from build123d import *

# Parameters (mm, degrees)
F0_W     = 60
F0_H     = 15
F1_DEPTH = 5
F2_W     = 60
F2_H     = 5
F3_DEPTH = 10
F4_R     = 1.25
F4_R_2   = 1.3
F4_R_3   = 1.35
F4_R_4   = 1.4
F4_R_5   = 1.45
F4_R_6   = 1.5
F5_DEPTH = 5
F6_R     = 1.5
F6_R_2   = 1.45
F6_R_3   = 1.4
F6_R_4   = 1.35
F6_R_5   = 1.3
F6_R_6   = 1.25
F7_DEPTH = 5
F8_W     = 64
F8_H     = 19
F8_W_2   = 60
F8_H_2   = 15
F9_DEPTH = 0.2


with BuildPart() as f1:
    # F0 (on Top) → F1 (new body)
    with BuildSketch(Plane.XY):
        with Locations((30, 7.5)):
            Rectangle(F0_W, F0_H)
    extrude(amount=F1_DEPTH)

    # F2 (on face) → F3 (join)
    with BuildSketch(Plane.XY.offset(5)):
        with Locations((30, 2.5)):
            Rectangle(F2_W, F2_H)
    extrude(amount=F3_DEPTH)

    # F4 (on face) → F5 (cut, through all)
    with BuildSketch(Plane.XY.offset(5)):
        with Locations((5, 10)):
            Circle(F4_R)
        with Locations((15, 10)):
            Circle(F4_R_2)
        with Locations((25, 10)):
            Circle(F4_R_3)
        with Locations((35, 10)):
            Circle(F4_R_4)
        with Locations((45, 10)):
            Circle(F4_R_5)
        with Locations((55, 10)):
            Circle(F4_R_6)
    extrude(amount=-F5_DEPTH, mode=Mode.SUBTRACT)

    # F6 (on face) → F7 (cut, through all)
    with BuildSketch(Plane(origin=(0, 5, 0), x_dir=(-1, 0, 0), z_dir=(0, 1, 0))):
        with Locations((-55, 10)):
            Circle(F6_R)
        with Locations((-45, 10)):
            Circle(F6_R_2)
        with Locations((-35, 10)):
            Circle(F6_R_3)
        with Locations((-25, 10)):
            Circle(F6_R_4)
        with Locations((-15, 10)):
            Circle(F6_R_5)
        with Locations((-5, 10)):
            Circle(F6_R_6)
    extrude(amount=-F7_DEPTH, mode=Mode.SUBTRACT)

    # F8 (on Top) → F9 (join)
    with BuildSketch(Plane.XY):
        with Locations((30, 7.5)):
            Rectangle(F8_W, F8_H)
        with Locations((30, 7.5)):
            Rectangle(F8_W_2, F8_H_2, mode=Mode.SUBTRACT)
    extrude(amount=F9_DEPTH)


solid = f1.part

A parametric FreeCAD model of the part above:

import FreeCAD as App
import Part
import Sketcher

V = App.Vector


def add_polygon(sketch, points):
    """Adds a closed chain of lines whose ends are joined by coincident constraints."""
    first, n = sketch.GeometryCount, len(points)
    for a, b in zip(points, points[1:] + points[:1]):
        sketch.addGeometry(Part.LineSegment(App.Vector(*a, 0), App.Vector(*b, 0)), False)
    for i in range(n):
        sketch.addConstraint(Sketcher.Constraint("Coincident", first + i, 2, first + (i + 1) % n, 1))

doc = App.newDocument("Part")
body = doc.addObject("PartDesign::Body", "Body")

sketch1 = doc.addObject("Sketcher::SketchObject", "Sketch")
body.addObject(sketch1)
sketch1.AttachmentSupport = (doc.XY_Plane, [""])
sketch1.MapMode = "FlatFace"
add_polygon(sketch1, [(0, 15), (0, 0), (60, 0), (60, 15)])
sketch1.addConstraint([
    Sketcher.Constraint("Vertical", 0),
    Sketcher.Constraint("Horizontal", 1),
    Sketcher.Constraint("Vertical", 2),
    Sketcher.Constraint("Horizontal", 3),
    Sketcher.Constraint("Coincident", 0, 2, -1, 1),
    Sketcher.Constraint("DistanceX", 1, 1, 1, 2, 60.0),
    Sketcher.Constraint("DistanceY", 0, 2, 0, 1, 15.0),
])
pad1 = doc.addObject("PartDesign::Pad", "Pad")
body.addObject(pad1)
pad1.Profile = sketch1
pad1.Length = 5

sketch2 = doc.addObject("Sketcher::SketchObject", "Sketch001")
body.addObject(sketch2)
sketch2.AttachmentSupport = (doc.XY_Plane, [""])
sketch2.MapMode = "FlatFace"
sketch2.AttachmentOffset = App.Placement(V(0, 0, 5), App.Rotation())
add_polygon(sketch2, [(0, 5), (0, 0), (60, 0), (60, 5)])
sketch2.addConstraint([
    Sketcher.Constraint("Vertical", 0),
    Sketcher.Constraint("Horizontal", 1),
    Sketcher.Constraint("Vertical", 2),
    Sketcher.Constraint("Horizontal", 3),
    Sketcher.Constraint("Coincident", 0, 2, -1, 1),
    Sketcher.Constraint("DistanceX", 1, 1, 1, 2, 60.0),
    Sketcher.Constraint("DistanceY", 0, 2, 0, 1, 5.0),
])
pad2 = doc.addObject("PartDesign::Pad", "Pad001")
body.addObject(pad2)
pad2.Profile = sketch2
pad2.Length = 10

sketch3 = doc.addObject("Sketcher::SketchObject", "Sketch002")
body.addObject(sketch3)
sketch3.AttachmentSupport = (doc.XY_Plane, [""])
sketch3.MapMode = "FlatFace"
sketch3.AttachmentOffset = App.Placement(V(0, 0, 5), App.Rotation())
sketch3.addGeometry([
    Part.Circle(V(5, 10, 0), V(0, 0, 1), 1.25),
    Part.Circle(V(15, 10, 0), V(0, 0, 1), 1.3),
    Part.Circle(V(25, 10, 0), V(0, 0, 1), 1.35),
    Part.Circle(V(35, 10, 0), V(0, 0, 1), 1.4),
    Part.Circle(V(45, 10, 0), V(0, 0, 1), 1.45),
    Part.Circle(V(55, 10, 0), V(0, 0, 1), 1.5),
], False)
sketch3.addConstraint([
    Sketcher.Constraint("Horizontal", 0, 3, 1, 3),
    Sketcher.Constraint("Horizontal", 1, 3, 2, 3),
    Sketcher.Constraint("Horizontal", 2, 3, 3, 3),
    Sketcher.Constraint("Horizontal", 3, 3, 4, 3),
    Sketcher.Constraint("Horizontal", 4, 3, 5, 3),
    Sketcher.Constraint("Diameter", 5, 3.0),
    Sketcher.Constraint("Diameter", 0, 2.5),
    Sketcher.Constraint("Diameter", 1, 2.6),
    Sketcher.Constraint("Diameter", 2, 2.7),
    Sketcher.Constraint("Diameter", 3, 2.8),
    Sketcher.Constraint("Diameter", 4, 2.9),
    Sketcher.Constraint("DistanceX", -1, 1, 0, 3, 5.0),
    Sketcher.Constraint("DistanceY", -1, 1, 0, 3, 10.0),
    Sketcher.Constraint("DistanceX", -1, 1, 1, 3, 15.0),
    Sketcher.Constraint("DistanceX", -1, 1, 2, 3, 25.0),
    Sketcher.Constraint("DistanceX", -1, 1, 3, 3, 35.0),
    Sketcher.Constraint("DistanceX", -1, 1, 4, 3, 45.0),
    Sketcher.Constraint("DistanceX", -1, 1, 5, 3, 55.0),
])
pocket1 = doc.addObject("PartDesign::Pocket", "Pocket")
body.addObject(pocket1)
pocket1.Profile = sketch3
pocket1.Type = "ThroughAll"

sketch4 = doc.addObject("Sketcher::SketchObject", "Sketch003")
body.addObject(sketch4)
sketch4.AttachmentSupport = (doc.XZ_Plane, [""])
sketch4.MapMode = "FlatFace"
sketch4.AttachmentOffset = App.Placement(V(0, 0, -5), App.Rotation())
sketch4.addGeometry([
    Part.Circle(V(55, 10, 0), V(0, 0, 1), 1.5),
    Part.Circle(V(45, 10, 0), V(0, 0, 1), 1.45),
    Part.Circle(V(35, 10, 0), V(0, 0, 1), 1.4),
    Part.Circle(V(25, 10, 0), V(0, 0, 1), 1.35),
    Part.Circle(V(15, 10, 0), V(0, 0, 1), 1.3),
    Part.Circle(V(5, 10, 0), V(0, 0, 1), 1.25),
], False)
sketch4.addConstraint([
    Sketcher.Constraint("Horizontal", 0, 3, 1, 3),
    Sketcher.Constraint("Horizontal", 1, 3, 2, 3),
    Sketcher.Constraint("Horizontal", 2, 3, 3, 3),
    Sketcher.Constraint("Horizontal", 3, 3, 4, 3),
    Sketcher.Constraint("Horizontal", 4, 3, 5, 3),
    Sketcher.Constraint("Diameter", 0, 3.0),
    Sketcher.Constraint("Diameter", 1, 2.9),
    Sketcher.Constraint("Diameter", 2, 2.8),
    Sketcher.Constraint("Diameter", 3, 2.7),
    Sketcher.Constraint("Diameter", 4, 2.6),
    Sketcher.Constraint("Diameter", 5, 2.5),
    Sketcher.Constraint("DistanceX", -1, 1, 0, 3, 55.0),
    Sketcher.Constraint("DistanceY", -1, 1, 0, 3, 10.0),
    Sketcher.Constraint("DistanceX", -1, 1, 1, 3, 45.0),
    Sketcher.Constraint("DistanceX", -1, 1, 2, 3, 35.0),
    Sketcher.Constraint("DistanceX", -1, 1, 3, 3, 25.0),
    Sketcher.Constraint("DistanceX", -1, 1, 4, 3, 15.0),
    Sketcher.Constraint("DistanceX", -1, 1, 5, 3, 5.0),
])
pocket2 = doc.addObject("PartDesign::Pocket", "Pocket001")
body.addObject(pocket2)
pocket2.Profile = sketch4
pocket2.Type = "ThroughAll"
pocket2.Reversed = True

sketch5 = doc.addObject("Sketcher::SketchObject", "Sketch004")
body.addObject(sketch5)
sketch5.AttachmentSupport = (doc.XY_Plane, [""])
sketch5.MapMode = "FlatFace"
add_polygon(sketch5, [(-2, 17), (-2, -2), (62, -2), (62, 17)])
add_polygon(sketch5, [(60, 0), (0, 0), (0, 15), (60, 15)])
sketch5.addConstraint([
    Sketcher.Constraint("Vertical", 0),
    Sketcher.Constraint("Horizontal", 1),
    Sketcher.Constraint("Vertical", 2),
    Sketcher.Constraint("Horizontal", 3),
    Sketcher.Constraint("Horizontal", 4),
    Sketcher.Constraint("Vertical", 5),
    Sketcher.Constraint("Horizontal", 6),
    Sketcher.Constraint("Vertical", 7),
    Sketcher.Constraint("Coincident", 4, 2, -1, 1),
    Sketcher.Constraint("DistanceX", 1, 1, 1, 2, 64.0),
    Sketcher.Constraint("DistanceX", 4, 2, 4, 1, 60.0),
    Sketcher.Constraint("DistanceY", 0, 2, 0, 1, 19.0),
    Sketcher.Constraint("DistanceY", 5, 1, 5, 2, 15.0),
    Sketcher.Constraint("DistanceX", 0, 2, -1, 1, 2.0),
    Sketcher.Constraint("DistanceY", 0, 2, -1, 1, 2.0),
])
pad3 = doc.addObject("PartDesign::Pad", "Pad002")
body.addObject(pad3)
pad3.Profile = sketch5
pad3.Length = 0.2

doc.recompute()
